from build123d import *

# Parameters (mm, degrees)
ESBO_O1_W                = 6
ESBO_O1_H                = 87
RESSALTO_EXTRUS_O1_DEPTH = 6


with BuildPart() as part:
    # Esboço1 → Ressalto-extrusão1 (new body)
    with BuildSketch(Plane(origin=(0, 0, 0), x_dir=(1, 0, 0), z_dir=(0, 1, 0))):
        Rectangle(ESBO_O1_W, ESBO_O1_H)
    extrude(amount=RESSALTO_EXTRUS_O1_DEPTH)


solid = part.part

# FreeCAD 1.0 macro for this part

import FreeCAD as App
import Part
import Sketcher

V = App.Vector

doc = App.newDocument("Part")
body = doc.addObject("PartDesign::Body", "Body")

# Sketch on XZ plane
sketch1 = body.newObject("Sketcher::SketchObject", "Sketch")
sketch1.AttachmentSupport = (doc.getObject("XZ_Plane"), [""])
sketch1.MapMode = "FlatFace"
sketch1.addGeometry([
    Part.LineSegment(V(-3, -44, 0), V(-3, 44, 0)),
    Part.LineSegment(V(-3, 44, 0), V(3, 44, 0)),
    Part.LineSegment(V(3, 44, 0), V(3, -44, 0)),
    Part.LineSegment(V(3, -44, 0), V(-3, -44, 0)),
], False)
sketch1.addConstraint([
    Sketcher.Constraint("Coincident", 0, 2, 1, 1),
    Sketcher.Constraint("Coincident", 1, 2, 2, 1),
    Sketcher.Constraint("Coincident", 2, 2, 3, 1),
    Sketcher.Constraint("Coincident", 3, 2, 0, 1),
    Sketcher.Constraint("Vertical", 0),
    Sketcher.Constraint("Horizontal", 1),
    Sketcher.Constraint("Vertical", 2),
    Sketcher.Constraint("Horizontal", 3),
    Sketcher.Constraint("Symmetric", 0, 2, 2, 2, -1, 1),
    Sketcher.Constraint("DistanceX", 1, 1, 1, 2, 6.0),
    Sketcher.Constraint("DistanceY", 0, 1, 0, 2, 87.0),
])
pad1 = body.newObject("PartDesign::Pad", "Pad")
pad1.Profile = sketch1
pad1.Length = 6
pad1.Reversed = True

doc.recompute()
